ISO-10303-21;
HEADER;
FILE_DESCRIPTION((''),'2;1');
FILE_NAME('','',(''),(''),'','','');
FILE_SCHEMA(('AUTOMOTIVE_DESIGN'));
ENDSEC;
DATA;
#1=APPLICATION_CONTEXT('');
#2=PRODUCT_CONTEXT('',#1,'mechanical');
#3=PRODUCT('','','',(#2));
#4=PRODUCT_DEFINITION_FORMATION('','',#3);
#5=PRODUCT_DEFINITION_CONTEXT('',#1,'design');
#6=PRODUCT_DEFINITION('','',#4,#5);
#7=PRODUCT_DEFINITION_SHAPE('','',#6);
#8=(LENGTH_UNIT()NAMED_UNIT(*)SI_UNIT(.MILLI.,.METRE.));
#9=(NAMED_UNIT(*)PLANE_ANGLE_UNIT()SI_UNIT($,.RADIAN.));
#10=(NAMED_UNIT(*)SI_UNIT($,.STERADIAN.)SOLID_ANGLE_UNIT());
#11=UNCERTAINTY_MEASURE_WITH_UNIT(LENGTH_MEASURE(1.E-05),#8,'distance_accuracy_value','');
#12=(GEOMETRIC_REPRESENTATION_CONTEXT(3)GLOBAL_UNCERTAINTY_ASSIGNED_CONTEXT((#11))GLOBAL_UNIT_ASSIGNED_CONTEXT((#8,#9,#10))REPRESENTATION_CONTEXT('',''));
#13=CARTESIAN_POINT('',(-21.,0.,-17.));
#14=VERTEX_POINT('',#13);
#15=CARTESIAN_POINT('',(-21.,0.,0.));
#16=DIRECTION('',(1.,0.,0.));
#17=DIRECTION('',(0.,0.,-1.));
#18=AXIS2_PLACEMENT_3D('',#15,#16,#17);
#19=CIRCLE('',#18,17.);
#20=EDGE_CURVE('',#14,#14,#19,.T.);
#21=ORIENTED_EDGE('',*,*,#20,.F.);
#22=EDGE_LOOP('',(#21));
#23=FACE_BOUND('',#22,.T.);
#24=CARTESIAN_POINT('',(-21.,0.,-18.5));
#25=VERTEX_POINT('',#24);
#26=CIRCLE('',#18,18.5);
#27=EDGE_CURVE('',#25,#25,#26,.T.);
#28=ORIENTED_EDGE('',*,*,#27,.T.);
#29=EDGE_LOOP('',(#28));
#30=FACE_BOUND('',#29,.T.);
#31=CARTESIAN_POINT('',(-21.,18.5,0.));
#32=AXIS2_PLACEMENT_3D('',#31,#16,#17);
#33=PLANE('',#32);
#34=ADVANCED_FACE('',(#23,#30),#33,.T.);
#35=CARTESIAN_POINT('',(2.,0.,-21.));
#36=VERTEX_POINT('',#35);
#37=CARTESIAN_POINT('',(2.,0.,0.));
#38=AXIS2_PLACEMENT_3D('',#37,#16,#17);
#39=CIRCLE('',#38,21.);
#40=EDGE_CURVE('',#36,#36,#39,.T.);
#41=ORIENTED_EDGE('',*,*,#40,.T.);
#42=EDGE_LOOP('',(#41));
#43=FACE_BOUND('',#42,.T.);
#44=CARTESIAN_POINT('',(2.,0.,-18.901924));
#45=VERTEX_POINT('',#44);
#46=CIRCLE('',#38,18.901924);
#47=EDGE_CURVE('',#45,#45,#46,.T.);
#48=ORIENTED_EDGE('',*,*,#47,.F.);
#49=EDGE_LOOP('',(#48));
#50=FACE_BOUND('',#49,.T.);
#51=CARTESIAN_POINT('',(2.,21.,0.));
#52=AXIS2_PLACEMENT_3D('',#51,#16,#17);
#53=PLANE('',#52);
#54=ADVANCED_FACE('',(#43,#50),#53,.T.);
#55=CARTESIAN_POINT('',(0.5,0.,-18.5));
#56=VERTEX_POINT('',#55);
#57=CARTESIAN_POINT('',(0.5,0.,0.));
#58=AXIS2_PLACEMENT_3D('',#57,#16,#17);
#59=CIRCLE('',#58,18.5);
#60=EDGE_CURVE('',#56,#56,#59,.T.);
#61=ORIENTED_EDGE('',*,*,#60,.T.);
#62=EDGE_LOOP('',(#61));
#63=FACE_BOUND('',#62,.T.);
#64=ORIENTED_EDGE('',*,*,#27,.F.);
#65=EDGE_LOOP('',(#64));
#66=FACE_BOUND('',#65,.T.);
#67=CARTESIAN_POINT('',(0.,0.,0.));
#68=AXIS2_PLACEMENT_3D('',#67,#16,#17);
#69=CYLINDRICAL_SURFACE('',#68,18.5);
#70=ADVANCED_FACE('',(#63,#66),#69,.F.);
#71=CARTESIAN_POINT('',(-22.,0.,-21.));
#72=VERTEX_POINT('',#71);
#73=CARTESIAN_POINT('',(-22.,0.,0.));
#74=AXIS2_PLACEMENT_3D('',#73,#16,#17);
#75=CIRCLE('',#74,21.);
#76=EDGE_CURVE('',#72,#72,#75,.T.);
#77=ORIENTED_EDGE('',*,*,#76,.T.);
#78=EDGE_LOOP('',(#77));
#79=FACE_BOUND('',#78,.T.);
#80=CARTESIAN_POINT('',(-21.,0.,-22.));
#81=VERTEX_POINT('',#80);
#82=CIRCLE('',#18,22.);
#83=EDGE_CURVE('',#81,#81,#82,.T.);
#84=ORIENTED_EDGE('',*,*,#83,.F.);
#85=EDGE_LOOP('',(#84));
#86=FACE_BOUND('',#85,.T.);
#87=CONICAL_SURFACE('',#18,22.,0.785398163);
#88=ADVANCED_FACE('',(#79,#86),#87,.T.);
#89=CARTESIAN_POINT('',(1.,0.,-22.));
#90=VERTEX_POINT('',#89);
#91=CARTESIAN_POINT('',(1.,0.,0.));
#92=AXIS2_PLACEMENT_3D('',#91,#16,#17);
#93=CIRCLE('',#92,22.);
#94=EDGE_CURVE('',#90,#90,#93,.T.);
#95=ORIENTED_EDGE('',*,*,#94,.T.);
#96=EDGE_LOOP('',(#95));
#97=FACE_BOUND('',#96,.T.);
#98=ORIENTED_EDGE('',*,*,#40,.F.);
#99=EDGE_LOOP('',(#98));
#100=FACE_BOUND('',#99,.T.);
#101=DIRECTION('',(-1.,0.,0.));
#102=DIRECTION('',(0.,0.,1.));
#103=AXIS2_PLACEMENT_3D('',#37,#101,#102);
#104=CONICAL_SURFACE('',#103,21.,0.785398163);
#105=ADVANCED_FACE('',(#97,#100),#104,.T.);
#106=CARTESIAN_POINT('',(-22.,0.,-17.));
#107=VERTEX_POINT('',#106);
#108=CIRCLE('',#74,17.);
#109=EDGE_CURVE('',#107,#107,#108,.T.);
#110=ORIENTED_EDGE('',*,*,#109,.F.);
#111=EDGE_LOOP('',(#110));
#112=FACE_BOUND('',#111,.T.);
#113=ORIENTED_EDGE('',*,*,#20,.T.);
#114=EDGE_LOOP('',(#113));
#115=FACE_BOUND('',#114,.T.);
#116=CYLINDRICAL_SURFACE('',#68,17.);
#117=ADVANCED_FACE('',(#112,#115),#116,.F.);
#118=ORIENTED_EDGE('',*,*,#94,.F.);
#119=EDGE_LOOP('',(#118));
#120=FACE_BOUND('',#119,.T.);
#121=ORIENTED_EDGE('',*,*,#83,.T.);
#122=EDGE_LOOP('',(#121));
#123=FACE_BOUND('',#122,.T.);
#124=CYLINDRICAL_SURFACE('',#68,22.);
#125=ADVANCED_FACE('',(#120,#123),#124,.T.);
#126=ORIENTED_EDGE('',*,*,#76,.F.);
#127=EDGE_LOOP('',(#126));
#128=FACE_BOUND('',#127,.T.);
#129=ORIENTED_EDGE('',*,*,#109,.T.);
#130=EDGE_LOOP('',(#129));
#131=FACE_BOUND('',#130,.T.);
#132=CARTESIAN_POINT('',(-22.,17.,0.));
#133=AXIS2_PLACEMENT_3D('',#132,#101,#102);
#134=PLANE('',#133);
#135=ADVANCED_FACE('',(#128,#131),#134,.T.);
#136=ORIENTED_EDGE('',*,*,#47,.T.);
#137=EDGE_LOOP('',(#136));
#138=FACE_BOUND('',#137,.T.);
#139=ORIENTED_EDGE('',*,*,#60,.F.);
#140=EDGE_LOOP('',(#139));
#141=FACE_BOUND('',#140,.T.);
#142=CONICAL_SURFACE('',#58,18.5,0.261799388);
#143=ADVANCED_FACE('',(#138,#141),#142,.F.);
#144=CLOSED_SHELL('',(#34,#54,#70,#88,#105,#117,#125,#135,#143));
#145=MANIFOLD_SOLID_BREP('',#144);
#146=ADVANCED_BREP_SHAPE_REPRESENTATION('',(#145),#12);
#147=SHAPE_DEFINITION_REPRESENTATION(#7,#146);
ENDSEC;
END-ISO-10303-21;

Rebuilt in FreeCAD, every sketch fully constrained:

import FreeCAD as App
import Part
import Sketcher

V = App.Vector
Q = App.Units.Quantity

doc = App.newDocument("Part")
params = doc.addObject("Spreadsheet::Sheet", "Params")
for row, (alias, value) in enumerate([
    ("sketch1_width", "1 mm"),
    ("sketch1_width2", "22 mm"),
    ("sketch1_height", "4 mm"),
    ("sketch1_width3", "21.5 mm"),
    ("sketch1_height2", "1.5 mm"),
    ("revolution_angle", "360 deg"),
], start=1):
    params.set(f"A{row}", alias)
    params.set(f"B{row}", "=" + value)
    params.setAlias(f"B{row}", alias)

body = doc.addObject("PartDesign::Body", "Body")

# Sketch on XY plane
sketch1 = doc.addObject("Sketcher::SketchObject", "Sketch")
body.addObject(sketch1)
sketch1.AttachmentSupport = (doc.XY_Plane, [""])
sketch1.MapMode = "FlatFace"
sketch1.addGeometry([
    Part.LineSegment(V(-22, 21, 0), V(-22, 17, 0)),  # 0
    Part.LineSegment(V(-22, 17, 0), V(-21, 17, 0)),  # 1
    Part.LineSegment(V(-21, 17, 0), V(-21, 18.5, 0)),  # 2
    Part.LineSegment(V(-21, 18.5, 0), V(0.5, 18.5, 0)),  # 3
    Part.LineSegment(V(0.5, 18.5, 0), V(2, 18.9, 0)),  # 4
    Part.LineSegment(V(2, 18.9, 0), V(2, 21, 0)),  # 5
    Part.LineSegment(V(2, 21, 0), V(1, 22, 0)),  # 6
    Part.LineSegment(V(1, 22, 0), V(-21, 22, 0)),  # 7
    Part.LineSegment(V(-21, 22, 0), V(-22, 21, 0)),  # 8
], False)
sketch1.addConstraint([
    Sketcher.Constraint("Coincident", 0, 2, 1, 1),
    Sketcher.Constraint("Coincident", 1, 2, 2, 1),
    Sketcher.Constraint("Coincident", 2, 2, 3, 1),
    Sketcher.Constraint("Coincident", 3, 2, 4, 1),
    Sketcher.Constraint("Coincident", 4, 2, 5, 1),
    Sketcher.Constraint("Coincident", 5, 2, 6, 1),
    Sketcher.Constraint("Coincident", 6, 2, 7, 1),
    Sketcher.Constraint("Coincident", 7, 2, 8, 1),
    Sketcher.Constraint("Coincident", 8, 2, 0, 1),
    Sketcher.Constraint("Vertical", 0),
    Sketcher.Constraint("Horizontal", 1),
    Sketcher.Constraint("Vertical", 2),
    Sketcher.Constraint("Horizontal", 3),
    Sketcher.Constraint("Vertical", 5),
    Sketcher.Constraint("Horizontal", 7),
    Sketcher.Constraint("Perpendicular", 6, 8),
    Sketcher.Constraint("Horizontal", 5, 2, 8, 2),
    Sketcher.Constraint("Vertical", 2, 2, 7, 2),
    Sketcher.Constraint("Equal", 6, 8),
    Sketcher.Constraint("DistanceX", 1, 1, 1, 2, Q("1 mm")),
    Sketcher.Constraint("DistanceX", 7, 2, 7, 1, Q("22 mm")),
    Sketcher.Constraint("DistanceY", 0, 2, 0, 1, Q("4 mm")),
    Sketcher.Constraint("Angle", 4, Q("15 deg")),
    Sketcher.Constraint("DistanceX", 3, 1, 3, 2, Q("21.5 mm")),
    Sketcher.Constraint("DistanceY", 2, 1, 2, 2, Q("1.5 mm")),
    Sketcher.Constraint("DistanceX", 0, 2, -1, 1, Q("22 mm")),
    Sketcher.Constraint("DistanceY", -1, 1, 0, 2, Q("17 mm")),
])
sketch1.setExpression("Constraints[19]", "Params.sketch1_width")
sketch1.setExpression("Constraints[20]", "Params.sketch1_width2")
sketch1.setExpression("Constraints[21]", "Params.sketch1_height")
sketch1.setExpression("Constraints[23]", "Params.sketch1_width3")
sketch1.setExpression("Constraints[24]", "Params.sketch1_height2")
revolution = doc.addObject("PartDesign::Revolution", "Revolution")
body.addObject(revolution)
revolution.Profile = sketch1
revolution.ReferenceAxis = (sketch1, ["H_Axis"])
revolution.setExpression("Angle", "Params.revolution_angle")

doc.recompute()
